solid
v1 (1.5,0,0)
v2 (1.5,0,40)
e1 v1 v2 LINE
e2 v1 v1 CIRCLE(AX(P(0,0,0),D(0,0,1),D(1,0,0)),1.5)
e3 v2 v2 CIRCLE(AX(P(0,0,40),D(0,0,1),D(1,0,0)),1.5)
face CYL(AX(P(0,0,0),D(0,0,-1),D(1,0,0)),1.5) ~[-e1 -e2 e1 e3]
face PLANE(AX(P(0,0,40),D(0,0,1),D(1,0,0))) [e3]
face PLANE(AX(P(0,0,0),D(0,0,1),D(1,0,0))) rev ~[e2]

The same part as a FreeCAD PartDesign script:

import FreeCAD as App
import Part
import Sketcher

doc = App.newDocument("Part")
body = doc.addObject("PartDesign::Body", "Body")

sketch1 = body.newObject("Sketcher::SketchObject", "Sketch")
sketch1.AttachmentSupport = (doc.getObject("XY_Plane"), [""])
sketch1.MapMode = "FlatFace"
sketch1.addGeometry(Part.Circle(App.Vector(0, 0, 0), App.Vector(0, 0, 1), 1.5), False)
sketch1.addConstraint(Sketcher.Constraint("Coincident", 0, 3, -1, 1))
sketch1.addConstraint(Sketcher.Constraint("Diameter", 0, 3.0))
pad1 = body.newObject("PartDesign::Pad", "Pad")
pad1.Profile = sketch1
pad1.Length = 40

doc.recompute()
